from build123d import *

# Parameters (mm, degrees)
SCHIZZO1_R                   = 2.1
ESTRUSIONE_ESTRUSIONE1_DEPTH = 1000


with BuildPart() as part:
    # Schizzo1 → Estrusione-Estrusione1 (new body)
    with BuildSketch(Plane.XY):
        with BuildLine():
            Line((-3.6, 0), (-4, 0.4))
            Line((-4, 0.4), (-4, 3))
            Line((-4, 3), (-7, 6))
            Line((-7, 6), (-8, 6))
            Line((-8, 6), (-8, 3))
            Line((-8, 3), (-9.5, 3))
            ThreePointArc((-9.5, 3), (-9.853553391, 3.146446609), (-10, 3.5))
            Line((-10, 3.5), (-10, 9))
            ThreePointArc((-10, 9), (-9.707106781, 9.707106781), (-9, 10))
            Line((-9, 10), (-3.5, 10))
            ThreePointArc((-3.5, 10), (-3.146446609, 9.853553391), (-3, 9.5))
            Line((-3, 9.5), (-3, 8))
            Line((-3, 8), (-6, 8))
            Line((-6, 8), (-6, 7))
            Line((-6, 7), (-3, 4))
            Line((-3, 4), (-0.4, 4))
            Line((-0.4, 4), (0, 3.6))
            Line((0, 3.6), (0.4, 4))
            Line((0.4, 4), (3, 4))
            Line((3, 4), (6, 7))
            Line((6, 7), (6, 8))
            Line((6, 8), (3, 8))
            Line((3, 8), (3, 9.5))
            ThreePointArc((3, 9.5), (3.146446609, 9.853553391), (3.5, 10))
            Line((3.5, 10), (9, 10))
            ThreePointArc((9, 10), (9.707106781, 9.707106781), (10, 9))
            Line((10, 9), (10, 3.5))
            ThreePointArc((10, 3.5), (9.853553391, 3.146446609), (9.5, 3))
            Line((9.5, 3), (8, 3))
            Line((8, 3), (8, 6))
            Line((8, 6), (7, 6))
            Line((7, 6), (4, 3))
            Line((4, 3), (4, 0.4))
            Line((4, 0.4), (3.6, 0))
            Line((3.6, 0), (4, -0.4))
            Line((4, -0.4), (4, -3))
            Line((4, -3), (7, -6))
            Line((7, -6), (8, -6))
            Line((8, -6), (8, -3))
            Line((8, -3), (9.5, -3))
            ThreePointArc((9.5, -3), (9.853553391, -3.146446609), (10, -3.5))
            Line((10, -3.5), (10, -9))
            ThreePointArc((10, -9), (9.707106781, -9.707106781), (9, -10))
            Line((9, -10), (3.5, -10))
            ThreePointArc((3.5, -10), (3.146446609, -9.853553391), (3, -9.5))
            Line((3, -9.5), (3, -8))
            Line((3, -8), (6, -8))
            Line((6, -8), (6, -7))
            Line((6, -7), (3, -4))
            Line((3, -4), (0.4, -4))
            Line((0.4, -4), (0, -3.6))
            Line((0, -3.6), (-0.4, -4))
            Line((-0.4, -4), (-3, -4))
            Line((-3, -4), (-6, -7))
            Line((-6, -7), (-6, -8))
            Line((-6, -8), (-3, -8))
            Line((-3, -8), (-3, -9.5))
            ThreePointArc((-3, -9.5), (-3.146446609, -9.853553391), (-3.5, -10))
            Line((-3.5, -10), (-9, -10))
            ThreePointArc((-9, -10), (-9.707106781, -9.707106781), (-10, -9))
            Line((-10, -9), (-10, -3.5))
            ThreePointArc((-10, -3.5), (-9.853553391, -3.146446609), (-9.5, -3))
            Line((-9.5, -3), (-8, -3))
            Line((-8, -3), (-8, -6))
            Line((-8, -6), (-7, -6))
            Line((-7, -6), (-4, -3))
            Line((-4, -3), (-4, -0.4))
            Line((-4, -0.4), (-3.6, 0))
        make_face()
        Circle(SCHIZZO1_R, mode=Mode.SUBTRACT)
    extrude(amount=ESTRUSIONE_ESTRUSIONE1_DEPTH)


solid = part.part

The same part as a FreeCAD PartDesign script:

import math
import FreeCAD as App
import Part
import Sketcher

doc = App.newDocument("Part")
body = doc.addObject("PartDesign::Body", "Body")

sketch1 = doc.addObject("Sketcher::SketchObject", "Sketch")
body.addObject(sketch1)
sketch1.AttachmentSupport = (doc.XY_Plane, [""])
sketch1.MapMode = "FlatFace"
sketch1.addGeometry(Part.LineSegment(App.Vector(-4, 0.4, 0), App.Vector(-3.6, 0, 0)), False)
sketch1.addGeometry(Part.LineSegment(App.Vector(-3.6, 0, 0), App.Vector(-4, -0.4, 0)), False)
sketch1.addGeometry(Part.LineSegment(App.Vector(-4, -0.4, 0), App.Vector(-4, -3, 0)), False)
sketch1.addGeometry(Part.LineSegment(App.Vector(-4, -3, 0), App.Vector(-7, -6, 0)), False)
sketch1.addGeometry(Part.LineSegment(App.Vector(-7, -6, 0), App.Vector(-8, -6, 0)), False)
sketch1.addGeometry(Part.LineSegment(App.Vector(-8, -6, 0), App.Vector(-8, -3, 0)), False)
sketch1.addGeometry(Part.LineSegment(App.Vector(-8, -3, 0), App.Vector(-9.5, -3, 0)), False)
sketch1.addGeometry(Part.ArcOfCircle(Part.Circle(App.Vector(-9.5, -3.5, 0), App.Vector(0, 0, 1), 0.5), math.radians(90), math.radians(180)), False)
sketch1.addGeometry(Part.LineSegment(App.Vector(-10, -3.5, 0), App.Vector(-10, -9, 0)), False)
sketch1.addGeometry(Part.ArcOfCircle(Part.Circle(App.Vector(-9, -9, 0), App.Vector(0, 0, 1), 1), math.radians(-180), math.radians(-90)), False)
sketch1.addGeometry(Part.LineSegment(App.Vector(-9, -10, 0), App.Vector(-3.5, -10, 0)), False)
sketch1.addGeometry(Part.ArcOfCircle(Part.Circle(App.Vector(-3.5, -9.5, 0), App.Vector(0, 0, 1), 0.5), math.radians(-90), math.radians(0)), False)
sketch1.addGeometry(Part.LineSegment(App.Vector(-3, -9.5, 0), App.Vector(-3, -8, 0)), False)
sketch1.addGeometry(Part.LineSegment(App.Vector(-3, -8, 0), App.Vector(-6, -8, 0)), False)
sketch1.addGeometry(Part.LineSegment(App.Vector(-6, -8, 0), App.Vector(-6, -7, 0)), False)
sketch1.addGeometry(Part.LineSegment(App.Vector(-6, -7, 0), App.Vector(-3, -4, 0)), False)
sketch1.addGeometry(Part.LineSegment(App.Vector(-3, -4, 0), App.Vector(-0.4, -4, 0)), False)
sketch1.addGeometry(Part.LineSegment(App.Vector(-0.4, -4, 0), App.Vector(0, -3.6, 0)), False)
sketch1.addGeometry(Part.LineSegment(App.Vector(0, -3.6, 0), App.Vector(0.4, -4, 0)), False)
sketch1.addGeometry(Part.LineSegment(App.Vector(0.4, -4, 0), App.Vector(3, -4, 0)), False)
sketch1.addGeometry(Part.LineSegment(App.Vector(3, -4, 0), App.Vector(6, -7, 0)), False)
sketch1.addGeometry(Part.LineSegment(App.Vector(6, -7, 0), App.Vector(6, -8, 0)), False)
sketch1.addGeometry(Part.LineSegment(App.Vector(6, -8, 0), App.Vector(3, -8, 0)), False)
sketch1.addGeometry(Part.LineSegment(App.Vector(3, -8, 0), App.Vector(3, -9.5, 0)), False)
sketch1.addGeometry(Part.ArcOfCircle(Part.Circle(App.Vector(3.5, -9.5, 0), App.Vector(0, 0, 1), 0.5), math.radians(180), math.radians(270)), False)
sketch1.addGeometry(Part.LineSegment(App.Vector(3.5, -10, 0), App.Vector(9, -10, 0)), False)
sketch1.addGeometry(Part.ArcOfCircle(Part.Circle(App.Vector(9, -9, 0), App.Vector(0, 0, 1), 1), math.radians(-90), math.radians(0)), False)
sketch1.addGeometry(Part.LineSegment(App.Vector(10, -9, 0), App.Vector(10, -3.5, 0)), False)
sketch1.addGeometry(Part.ArcOfCircle(Part.Circle(App.Vector(9.5, -3.5, 0), App.Vector(0, 0, 1), 0.5), math.radians(0), math.radians(90)), False)
sketch1.addGeometry(Part.LineSegment(App.Vector(9.5, -3, 0), App.Vector(8, -3, 0)), False)
sketch1.addGeometry(Part.LineSegment(App.Vector(8, -3, 0), App.Vector(8, -6, 0)), False)
sketch1.addGeometry(Part.LineSegment(App.Vector(8, -6, 0), App.Vector(7, -6, 0)), False)
sketch1.addGeometry(Part.LineSegment(App.Vector(7, -6, 0), App.Vector(4, -3, 0)), False)
sketch1.addGeometry(Part.LineSegment(App.Vector(4, -3, 0), App.Vector(4, -0.4, 0)), False)
sketch1.addGeometry(Part.LineSegment(App.Vector(4, -0.4, 0), App.Vector(3.6, 0, 0)), False)
sketch1.addGeometry(Part.LineSegment(App.Vector(3.6, 0, 0), App.Vector(4, 0.4, 0)), False)
sketch1.addGeometry(Part.LineSegment(App.Vector(4, 0.4, 0), App.Vector(4, 3, 0)), False)
sketch1.addGeometry(Part.LineSegment(App.Vector(4, 3, 0), App.Vector(7, 6, 0)), False)
sketch1.addGeometry(Part.LineSegment(App.Vector(7, 6, 0), App.Vector(8, 6, 0)), False)
sketch1.addGeometry(Part.LineSegment(App.Vector(8, 6, 0), App.Vector(8, 3, 0)), False)
sketch1.addGeometry(Part.LineSegment(App.Vector(8, 3, 0), App.Vector(9.5, 3, 0)), False)
sketch1.addGeometry(Part.ArcOfCircle(Part.Circle(App.Vector(9.5, 3.5, 0), App.Vector(0, 0, 1), 0.5), math.radians(-90), math.radians(0)), False)
sketch1.addGeometry(Part.LineSegment(App.Vector(10, 3.5, 0), App.Vector(10, 9, 0)), False)
sketch1.addGeometry(Part.ArcOfCircle(Part.Circle(App.Vector(9, 9, 0), App.Vector(0, 0, 1), 1), math.radians(0), math.radians(90)), False)
sketch1.addGeometry(Part.LineSegment(App.Vector(9, 10, 0), App.Vector(3.5, 10, 0)), False)
sketch1.addGeometry(Part.ArcOfCircle(Part.Circle(App.Vector(3.5, 9.5, 0), App.Vector(0, 0, 1), 0.5), math.radians(90), math.radians(180)), False)
sketch1.addGeometry(Part.LineSegment(App.Vector(3, 9.5, 0), App.Vector(3, 8, 0)), False)
sketch1.addGeometry(Part.LineSegment(App.Vector(3, 8, 0), App.Vector(6, 8, 0)), False)
sketch1.addGeometry(Part.LineSegment(App.Vector(6, 8, 0), App.Vector(6, 7, 0)), False)
sketch1.addGeometry(Part.LineSegment(App.Vector(6, 7, 0), App.Vector(3, 4, 0)), False)
sketch1.addGeometry(Part.LineSegment(App.Vector(3, 4, 0), App.Vector(0.4, 4, 0)), False)
sketch1.addGeometry(Part.LineSegment(App.Vector(0.4, 4, 0), App.Vector(0, 3.6, 0)), False)
sketch1.addGeometry(Part.LineSegment(App.Vector(0, 3.6, 0), App.Vector(-0.4, 4, 0)), False)
sketch1.addGeometry(Part.LineSegment(App.Vector(-0.4, 4, 0), App.Vector(-3, 4, 0)), False)
sketch1.addGeometry(Part.LineSegment(App.Vector(-3, 4, 0), App.Vector(-6, 7, 0)), False)
sketch1.addGeometry(Part.LineSegment(App.Vector(-6, 7, 0), App.Vector(-6, 8, 0)), False)
sketch1.addGeometry(Part.LineSegment(App.Vector(-6, 8, 0), App.Vector(-3, 8, 0)), False)
sketch1.addGeometry(Part.LineSegment(App.Vector(-3, 8, 0), App.Vector(-3, 9.5, 0)), False)
sketch1.addGeometry(Part.ArcOfCircle(Part.Circle(App.Vector(-3.5, 9.5, 0), App.Vector(0, 0, 1), 0.5), math.radians(0), math.radians(90)), False)
sketch1.addGeometry(Part.LineSegment(App.Vector(-3.5, 10, 0), App.Vector(-9, 10, 0)), False)
sketch1.addGeometry(Part.ArcOfCircle(Part.Circle(App.Vector(-9, 9, 0), App.Vector(0, 0, 1), 1), math.radians(90), math.radians(180)), False)
sketch1.addGeometry(Part.LineSegment(App.Vector(-10, 9, 0), App.Vector(-10, 3.5, 0)), False)
sketch1.addGeometry(Part.ArcOfCircle(Part.Circle(App.Vector(-9.5, 3.5, 0), App.Vector(0, 0, 1), 0.5), math.radians(180), math.radians(270)), False)
sketch1.addGeometry(Part.LineSegment(App.Vector(-9.5, 3, 0), App.Vector(-8, 3, 0)), False)
sketch1.addGeometry(Part.LineSegment(App.Vector(-8, 3, 0), App.Vector(-8, 6, 0)), False)
sketch1.addGeometry(Part.LineSegment(App.Vector(-8, 6, 0), App.Vector(-7, 6, 0)), False)
sketch1.addGeometry(Part.LineSegment(App.Vector(-7, 6, 0), App.Vector(-4, 3, 0)), False)
sketch1.addGeometry(Part.LineSegment(App.Vector(-4, 3, 0), App.Vector(-4, 0.4, 0)), False)
sketch1.addGeometry(Part.Circle(App.Vector(0, 0, 0), App.Vector(0, 0, 1), 2.1), False)
sketch1.addConstraint(Sketcher.Constraint("Coincident", 0, 2, 1, 1))
sketch1.addConstraint(Sketcher.Constraint("Coincident", 1, 2, 2, 1))
sketch1.addConstraint(Sketcher.Constraint("Coincident", 2, 2, 3, 1))
sketch1.addConstraint(Sketcher.Constraint("Coincident", 3, 2, 4, 1))
sketch1.addConstraint(Sketcher.Constraint("Coincident", 4, 2, 5, 1))
sketch1.addConstraint(Sketcher.Constraint("Coincident", 5, 2, 6, 1))
sketch1.addConstraint(Sketcher.Constraint("Tangent", 6, 2, 7, 1))
sketch1.addConstraint(Sketcher.Constraint("Tangent", 7, 2, 8, 1))
sketch1.addConstraint(Sketcher.Constraint("Tangent", 8, 2, 9, 1))
sketch1.addConstraint(Sketcher.Constraint("Tangent", 9, 2, 10, 1))
sketch1.addConstraint(Sketcher.Constraint("Tangent", 10, 2, 11, 1))
sketch1.addConstraint(Sketcher.Constraint("Tangent", 11, 2, 12, 1))
sketch1.addConstraint(Sketcher.Constraint("Coincident", 12, 2, 13, 1))
sketch1.addConstraint(Sketcher.Constraint("Coincident", 13, 2, 14, 1))
sketch1.addConstraint(Sketcher.Constraint("Coincident", 14, 2, 15, 1))
sketch1.addConstraint(Sketcher.Constraint("Coincident", 15, 2, 16, 1))
sketch1.addConstraint(Sketcher.Constraint("Coincident", 16, 2, 17, 1))
sketch1.addConstraint(Sketcher.Constraint("Coincident", 17, 2, 18, 1))
sketch1.addConstraint(Sketcher.Constraint("Coincident", 18, 2, 19, 1))
sketch1.addConstraint(Sketcher.Constraint("Coincident", 19, 2, 20, 1))
sketch1.addConstraint(Sketcher.Constraint("Coincident", 20, 2, 21, 1))
sketch1.addConstraint(Sketcher.Constraint("Coincident", 21, 2, 22, 1))
sketch1.addConstraint(Sketcher.Constraint("Coincident", 22, 2, 23, 1))
sketch1.addConstraint(Sketcher.Constraint("Tangent", 23, 2, 24, 1))
sketch1.addConstraint(Sketcher.Constraint("Tangent", 24, 2, 25, 1))
sketch1.addConstraint(Sketcher.Constraint("Tangent", 25, 2, 26, 1))
sketch1.addConstraint(Sketcher.Constraint("Tangent", 26, 2, 27, 1))
sketch1.addConstraint(Sketcher.Constraint("Tangent", 27, 2, 28, 1))
sketch1.addConstraint(Sketcher.Constraint("Tangent", 28, 2, 29, 1))
sketch1.addConstraint(Sketcher.Constraint("Coincident", 29, 2, 30, 1))
sketch1.addConstraint(Sketcher.Constraint("Coincident", 30, 2, 31, 1))
sketch1.addConstraint(Sketcher.Constraint("Coincident", 31, 2, 32, 1))
sketch1.addConstraint(Sketcher.Constraint("Coincident", 32, 2, 33, 1))
sketch1.addConstraint(Sketcher.Constraint("Coincident", 33, 2, 34, 1))
sketch1.addConstraint(Sketcher.Constraint("Coincident", 34, 2, 35, 1))
sketch1.addConstraint(Sketcher.Constraint("Coincident", 35, 2, 36, 1))
sketch1.addConstraint(Sketcher.Constraint("Coincident", 36, 2, 37, 1))
sketch1.addConstraint(Sketcher.Constraint("Coincident", 37, 2, 38, 1))
sketch1.addConstraint(Sketcher.Constraint("Coincident", 38, 2, 39, 1))
sketch1.addConstraint(Sketcher.Constraint("Coincident", 39, 2, 40, 1))
sketch1.addConstraint(Sketcher.Constraint("Tangent", 40, 2, 41, 1))
sketch1.addConstraint(Sketcher.Constraint("Tangent", 41, 2, 42, 1))
sketch1.addConstraint(Sketcher.Constraint("Tangent", 42, 2, 43, 1))
sketch1.addConstraint(Sketcher.Constraint("Tangent", 43, 2, 44, 1))
sketch1.addConstraint(Sketcher.Constraint("Tangent", 44, 2, 45, 1))
sketch1.addConstraint(Sketcher.Constraint("Tangent", 45, 2, 46, 1))
sketch1.addConstraint(Sketcher.Constraint("Coincident", 46, 2, 47, 1))
sketch1.addConstraint(Sketcher.Constraint("Coincident", 47, 2, 48, 1))
sketch1.addConstraint(Sketcher.Constraint("Coincident", 48, 2, 49, 1))
sketch1.addConstraint(Sketcher.Constraint("Coincident", 49, 2, 50, 1))
sketch1.addConstraint(Sketcher.Constraint("Coincident", 50, 2, 51, 1))
sketch1.addConstraint(Sketcher.Constraint("Coincident", 51, 2, 52, 1))
sketch1.addConstraint(Sketcher.Constraint("Coincident", 52, 2, 53, 1))
sketch1.addConstraint(Sketcher.Constraint("Coincident", 53, 2, 54, 1))
sketch1.addConstraint(Sketcher.Constraint("Coincident", 54, 2, 55, 1))
sketch1.addConstraint(Sketcher.Constraint("Coincident", 55, 2, 56, 1))
sketch1.addConstraint(Sketcher.Constraint("Coincident", 56, 2, 57, 1))
sketch1.addConstraint(Sketcher.Constraint("Tangent", 57, 2, 58, 1))
sketch1.addConstraint(Sketcher.Constraint("Tangent", 58, 2, 59, 1))
sketch1.addConstraint(Sketcher.Constraint("Tangent", 59, 2, 60, 1))
sketch1.addConstraint(Sketcher.Constraint("Tangent", 60, 2, 61, 1))
sketch1.addConstraint(Sketcher.Constraint("Tangent", 61, 2, 62, 1))
sketch1.addConstraint(Sketcher.Constraint("Tangent", 62, 2, 63, 1))
sketch1.addConstraint(Sketcher.Constraint("Coincident", 63, 2, 64, 1))
sketch1.addConstraint(Sketcher.Constraint("Coincident", 64, 2, 65, 1))
sketch1.addConstraint(Sketcher.Constraint("Coincident", 65, 2, 66, 1))
sketch1.addConstraint(Sketcher.Constraint("Coincident", 66, 2, 67, 1))
sketch1.addConstraint(Sketcher.Constraint("Coincident", 67, 2, 0, 1))
sketch1.addConstraint(Sketcher.Constraint("Vertical", 2))
sketch1.addConstraint(Sketcher.Constraint("Horizontal", 4))
sketch1.addConstraint(Sketcher.Constraint("Vertical", 5))
sketch1.addConstraint(Sketcher.Constraint("Horizontal", 6))
sketch1.addConstraint(Sketcher.Constraint("Vertical", 8))
sketch1.addConstraint(Sketcher.Constraint("Horizontal", 10))
sketch1.addConstraint(Sketcher.Constraint("Vertical", 12))
sketch1.addConstraint(Sketcher.Constraint("Horizontal", 13))
sketch1.addConstraint(Sketcher.Constraint("Vertical", 14))
sketch1.addConstraint(Sketcher.Constraint("Horizontal", 16))
sketch1.addConstraint(Sketcher.Constraint("Horizontal", 19))
sketch1.addConstraint(Sketcher.Constraint("Vertical", 21))
sketch1.addConstraint(Sketcher.Constraint("Horizontal", 22))
sketch1.addConstraint(Sketcher.Constraint("Vertical", 23))
sketch1.addConstraint(Sketcher.Constraint("Horizontal", 25))
sketch1.addConstraint(Sketcher.Constraint("Vertical", 27))
sketch1.addConstraint(Sketcher.Constraint("Horizontal", 29))
sketch1.addConstraint(Sketcher.Constraint("Vertical", 30))
sketch1.addConstraint(Sketcher.Constraint("Horizontal", 31))
sketch1.addConstraint(Sketcher.Constraint("Vertical", 33))
sketch1.addConstraint(Sketcher.Constraint("Vertical", 36))
sketch1.addConstraint(Sketcher.Constraint("Horizontal", 38))
sketch1.addConstraint(Sketcher.Constraint("Vertical", 39))
sketch1.addConstraint(Sketcher.Constraint("Horizontal", 40))
sketch1.addConstraint(Sketcher.Constraint("Vertical", 42))
sketch1.addConstraint(Sketcher.Constraint("Horizontal", 44))
sketch1.addConstraint(Sketcher.Constraint("Vertical", 46))
sketch1.addConstraint(Sketcher.Constraint("Horizontal", 47))
sketch1.addConstraint(Sketcher.Constraint("Vertical", 48))
sketch1.addConstraint(Sketcher.Constraint("Horizontal", 50))
sketch1.addConstraint(Sketcher.Constraint("Horizontal", 53))
sketch1.addConstraint(Sketcher.Constraint("Vertical", 55))
sketch1.addConstraint(Sketcher.Constraint("Horizontal", 56))
sketch1.addConstraint(Sketcher.Constraint("Vertical", 57))
sketch1.addConstraint(Sketcher.Constraint("Horizontal", 59))
sketch1.addConstraint(Sketcher.Constraint("Vertical", 61))
sketch1.addConstraint(Sketcher.Constraint("Horizontal", 63))
sketch1.addConstraint(Sketcher.Constraint("Vertical", 64))
sketch1.addConstraint(Sketcher.Constraint("Horizontal", 65))
sketch1.addConstraint(Sketcher.Constraint("Vertical", 67))
sketch1.addConstraint(Sketcher.Constraint("Coincident", 68, 3, -1, 1))
sketch1.addConstraint(Sketcher.Constraint("Equal", 7, 11))
sketch1.addConstraint(Sketcher.Constraint("Equal", 11, 24))
sketch1.addConstraint(Sketcher.Constraint("Equal", 9, 26))
sketch1.addConstraint(Sketcher.Constraint("Equal", 24, 28))
sketch1.addConstraint(Sketcher.Constraint("Equal", 28, 41))
sketch1.addConstraint(Sketcher.Constraint("Equal", 26, 43))
sketch1.addConstraint(Sketcher.Constraint("Equal", 41, 45))
sketch1.addConstraint(Sketcher.Constraint("Equal", 45, 58))
sketch1.addConstraint(Sketcher.Constraint("Equal", 43, 60))
sketch1.addConstraint(Sketcher.Constraint("Equal", 58, 62))
sketch1.addConstraint(Sketcher.Constraint("Symmetric", 7, 3, 41, 3, -1, 1))
sketch1.addConstraint(Sketcher.Constraint("Symmetric", 11, 3, 45, 3, -1, 1))
sketch1.addConstraint(Sketcher.Constraint("Symmetric", 24, 3, 58, 3, -1, 1))
sketch1.addConstraint(Sketcher.Constraint("Symmetric", 28, 3, 62, 3, -1, 1))
sketch1.addConstraint(Sketcher.Constraint("Symmetric", 0, 2, 34, 2, -1, 1))
sketch1.addConstraint(Sketcher.Constraint("Symmetric", 1, 2, 35, 2, -1, 1))
sketch1.addConstraint(Sketcher.Constraint("Symmetric", 3, 2, 37, 2, -1, 1))
sketch1.addConstraint(Sketcher.Constraint("Symmetric", 13, 2, 47, 2, -1, 1))
sketch1.addConstraint(Sketcher.Constraint("Symmetric", 15, 2, 49, 2, -1, 1))
sketch1.addConstraint(Sketcher.Constraint("Symmetric", 17, 2, 51, 2, -1, 1))
sketch1.addConstraint(Sketcher.Constraint("Symmetric", 18, 2, 52, 2, -1, 1))
sketch1.addConstraint(Sketcher.Constraint("Symmetric", 20, 2, 54, 2, -1, 1))
sketch1.addConstraint(Sketcher.Constraint("Symmetric", 30, 2, 64, 2, -1, 1))
sketch1.addConstraint(Sketcher.Constraint("Symmetric", 32, 2, 66, 2, -1, 1))
sketch1.addConstraint(Sketcher.Constraint("Symmetric", 11, 3, 24, 3, -2))
sketch1.addConstraint(Sketcher.Constraint("Symmetric", 7, 3, 28, 3, -2))
sketch1.addConstraint(Sketcher.Constraint("Symmetric", 16, 2, 18, 2, -2))
sketch1.addConstraint(Sketcher.Constraint("Symmetric", 14, 2, 20, 2, -2))
sketch1.addConstraint(Sketcher.Constraint("Symmetric", 4, 2, 30, 2, -2))
sketch1.addConstraint(Sketcher.Constraint("Symmetric", 2, 2, 32, 2, -2))
sketch1.addConstraint(Sketcher.Constraint("PointOnObject", 0, 2, -1))
sketch1.addConstraint(Sketcher.Constraint("PointOnObject", 17, 2, -2))
sketch1.addConstraint(Sketcher.Constraint("Perpendicular", 0, 1))
sketch1.addConstraint(Sketcher.Constraint("Parallel", 1, 3))
sketch1.addConstraint(Sketcher.Constraint("Parallel", 3, 15))
sketch1.addConstraint(Sketcher.Constraint("Parallel", 15, 17))
sketch1.addConstraint(Sketcher.Constraint("Perpendicular", 17, 18))
sketch1.addConstraint(Sketcher.Constraint("Parallel", 18, 20))
sketch1.addConstraint(Sketcher.Constraint("Parallel", 20, 32))
sketch1.addConstraint(Sketcher.Constraint("Parallel", 32, 34))
sketch1.addConstraint(Sketcher.Constraint("Parallel", 35, 37))
sketch1.addConstraint(Sketcher.Constraint("Parallel", 37, 49))
sketch1.addConstraint(Sketcher.Constraint("Parallel", 49, 51))
sketch1.addConstraint(Sketcher.Constraint("Parallel", 52, 54))
sketch1.addConstraint(Sketcher.Constraint("Parallel", 54, 66))
sketch1.addConstraint(Sketcher.Constraint("Horizontal", 2, 2, 5, 2))
sketch1.addConstraint(Sketcher.Constraint("Horizontal", 13, 2, 21, 2))
sketch1.addConstraint(Sketcher.Constraint("Horizontal", 47, 2, 55, 2))
sketch1.addConstraint(Sketcher.Constraint("Vertical", 12, 2, 15, 2))
sketch1.addConstraint(Sketcher.Constraint("Vertical", 30, 2, 38, 2))
sketch1.addConstraint(Sketcher.Constraint("Equal", 53, 2))
sketch1.addConstraint(Sketcher.Constraint("Equal", 56, 5))
sketch1.addConstraint(Sketcher.Constraint("Equal", 59, 8))
sketch1.addConstraint(Sketcher.Constraint("Equal", 63, 12))
sketch1.addConstraint(Sketcher.Constraint("Equal", 65, 14))
sketch1.addConstraint(Sketcher.Constraint("Equal", 1, 17))
sketch1.addConstraint(Sketcher.Constraint("Radius", 9, 1.0))
sketch1.addConstraint(Sketcher.Constraint("Diameter", 68, 4.2))
sketch1.addConstraint(Sketcher.Constraint("Radius", 7, 0.5))
sketch1.addConstraint(Sketcher.Constraint("DistanceX", 4, 2, 4, 1, 1.0))
sketch1.addConstraint(Sketcher.Constraint("DistanceX", 13, 2, 13, 1, 3.0))
sketch1.addConstraint(Sketcher.Constraint("DistanceX", 6, 2, 6, 1, 1.5))
sketch1.addConstraint(Sketcher.Constraint("DistanceX", 10, 1, 10, 2, 5.5))
sketch1.addConstraint(Sketcher.Constraint("DistanceX", 16, 1, 16, 2, 2.6))
sketch1.addConstraint(Sketcher.Constraint("DistanceX", 9, 3, -1, 1, 9.0))
pad1 = doc.addObject("PartDesign::Pad", "Pad")
body.addObject(pad1)
pad1.Profile = sketch1
pad1.Length = 1000

doc.recompute()
